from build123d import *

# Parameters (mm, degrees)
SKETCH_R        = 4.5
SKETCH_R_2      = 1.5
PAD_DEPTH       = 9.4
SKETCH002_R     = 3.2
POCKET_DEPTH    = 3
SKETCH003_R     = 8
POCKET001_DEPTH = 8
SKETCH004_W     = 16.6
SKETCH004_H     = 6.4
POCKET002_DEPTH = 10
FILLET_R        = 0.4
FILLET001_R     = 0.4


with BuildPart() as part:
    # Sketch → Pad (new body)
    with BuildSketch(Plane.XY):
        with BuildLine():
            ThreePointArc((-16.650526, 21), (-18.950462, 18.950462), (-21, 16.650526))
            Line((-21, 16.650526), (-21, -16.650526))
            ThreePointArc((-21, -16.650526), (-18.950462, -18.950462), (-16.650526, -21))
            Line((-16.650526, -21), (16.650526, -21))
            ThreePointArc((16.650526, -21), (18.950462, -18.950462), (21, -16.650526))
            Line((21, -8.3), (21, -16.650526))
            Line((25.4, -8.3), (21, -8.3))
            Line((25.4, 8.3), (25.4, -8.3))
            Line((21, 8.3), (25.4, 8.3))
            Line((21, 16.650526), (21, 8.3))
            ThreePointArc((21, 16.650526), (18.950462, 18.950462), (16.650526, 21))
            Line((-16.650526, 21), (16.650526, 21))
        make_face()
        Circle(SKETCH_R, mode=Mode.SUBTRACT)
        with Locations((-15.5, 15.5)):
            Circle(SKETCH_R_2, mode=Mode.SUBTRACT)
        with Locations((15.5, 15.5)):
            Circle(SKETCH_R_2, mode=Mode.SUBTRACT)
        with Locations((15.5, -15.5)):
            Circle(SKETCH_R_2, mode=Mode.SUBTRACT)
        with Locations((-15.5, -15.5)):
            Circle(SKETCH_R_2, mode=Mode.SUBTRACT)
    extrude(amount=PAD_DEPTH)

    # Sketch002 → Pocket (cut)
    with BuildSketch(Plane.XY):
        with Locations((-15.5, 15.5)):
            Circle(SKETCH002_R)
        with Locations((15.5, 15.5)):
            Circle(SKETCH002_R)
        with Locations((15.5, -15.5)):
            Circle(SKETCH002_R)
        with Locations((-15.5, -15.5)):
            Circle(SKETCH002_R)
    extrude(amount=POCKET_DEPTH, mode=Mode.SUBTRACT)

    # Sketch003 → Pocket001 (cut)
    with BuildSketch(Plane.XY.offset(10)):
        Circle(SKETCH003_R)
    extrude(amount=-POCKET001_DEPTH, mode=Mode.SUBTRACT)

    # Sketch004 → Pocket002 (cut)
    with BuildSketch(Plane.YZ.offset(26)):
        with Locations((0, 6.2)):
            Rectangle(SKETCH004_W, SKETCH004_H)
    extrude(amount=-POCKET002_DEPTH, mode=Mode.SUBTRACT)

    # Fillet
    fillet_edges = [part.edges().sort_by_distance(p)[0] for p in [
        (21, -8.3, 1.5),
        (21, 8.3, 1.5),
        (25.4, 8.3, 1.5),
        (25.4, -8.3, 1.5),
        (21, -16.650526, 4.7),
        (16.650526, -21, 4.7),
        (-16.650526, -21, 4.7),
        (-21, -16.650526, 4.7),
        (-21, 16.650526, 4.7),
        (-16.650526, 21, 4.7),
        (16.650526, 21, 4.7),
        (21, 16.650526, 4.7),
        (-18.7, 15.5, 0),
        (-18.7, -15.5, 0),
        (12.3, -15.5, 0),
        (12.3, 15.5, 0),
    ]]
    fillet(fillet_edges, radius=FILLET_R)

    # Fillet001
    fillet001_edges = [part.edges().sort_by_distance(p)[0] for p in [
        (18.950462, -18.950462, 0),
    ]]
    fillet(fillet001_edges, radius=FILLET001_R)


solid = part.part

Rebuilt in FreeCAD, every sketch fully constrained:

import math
import FreeCAD as App
import Part
import Sketcher

V = App.Vector


def edges_at(feature, points):
    """Names of the edges that pass closest to the given points."""
    edges = feature.Shape.Edges
    near = lambda p: min(range(len(edges)), key=lambda i: edges[i].distToShape(Part.Vertex(*p))[0])
    return sorted({f"Edge{near(p) + 1}" for p in points})

doc = App.newDocument("Part")
params = doc.addObject("Spreadsheet::Sheet", "Params")
for row, (alias, value) in enumerate([
    ("sketch1_diameter", "3 mm"),
    ("sketch1_diameter2", "9 mm"),
    ("sketch1_width", "4.4 mm"),
    ("sketch1_height", "16.6 mm"),
    ("pad1_length", "9.4 mm"),
    ("sketch2_diameter", "6.4 mm"),
    ("pocket1_length", "3 mm"),
    ("sketch3_diameter", "16 mm"),
    ("pocket2_length", "8 mm"),
    ("sketch4_width", "16.6 mm"),
    ("sketch4_height", "6.4 mm"),
    ("pocket3_length", "10 mm"),
    ("fillet_radius", "0.4 mm"),
    ("fillet2_radius", "0.4 mm"),
], start=1):
    params.set(f"A{row}", alias)
    params.set(f"B{row}", "=" + value)
    params.setAlias(f"B{row}", alias)

body = doc.addObject("PartDesign::Body", "Body")

# Sketch on XY plane
sketch1 = doc.addObject("Sketcher::SketchObject", "Sketch")
body.addObject(sketch1)
sketch1.AttachmentSupport = (doc.XY_Plane, [""])
sketch1.MapMode = "FlatFace"
sketch1.addGeometry(Part.ArcOfCircle(Part.Circle(V(-0.000008, 0.000008, 0), V(0, 0, 1), 26.799989), math.radians(128.41027), math.radians(141.58973)), False)
sketch1.addGeometry(Part.LineSegment(V(-21, 16.650526, 0), V(-21, -16.650526, 0)), False)
sketch1.addGeometry(Part.ArcOfCircle(Part.Circle(V(-0.000008, -0.000008, 0), V(0, 0, 1), 26.799989), math.radians(-141.58973), math.radians(-128.41027)), False)
sketch1.addGeometry(Part.LineSegment(V(-16.650526, -21, 0), V(16.650526, -21, 0)), False)
sketch1.addGeometry(Part.ArcOfCircle(Part.Circle(V(0.000008, -0.000008, 0), V(0, 0, 1), 26.799989), math.radians(-51.58973), math.radians(-38.41027)), False)
sketch1.addGeometry(Part.LineSegment(V(21, -16.650526, 0), V(21, -8.3, 0)), False)
sketch1.addGeometry(Part.LineSegment(V(21, -8.3, 0), V(25.4, -8.3, 0)), False)
sketch1.addGeometry(Part.LineSegment(V(25.4, -8.3, 0), V(25.4, 8.3, 0)), False)
sketch1.addGeometry(Part.LineSegment(V(25.4, 8.3, 0), V(21, 8.3, 0)), False)
sketch1.addGeometry(Part.LineSegment(V(21, 8.3, 0), V(21, 16.650526, 0)), False)
sketch1.addGeometry(Part.ArcOfCircle(Part.Circle(V(0.000008, 0.000008, 0), V(0, 0, 1), 26.799989), math.radians(38.41027), math.radians(51.58973)), False)
sketch1.addGeometry(Part.LineSegment(V(16.650526, 21, 0), V(-16.650526, 21, 0)), False)
sketch1.addGeometry(Part.Circle(V(-15.5, -15.5, 0), V(0, 0, 1), 1.5), False)
sketch1.addGeometry(Part.Circle(V(15.5, -15.5, 0), V(0, 0, 1), 1.5), False)
sketch1.addGeometry(Part.Circle(V(-15.5, 15.5, 0), V(0, 0, 1), 1.5), False)
sketch1.addGeometry(Part.Circle(V(0, 0, 0), V(0, 0, 1), 4.5), False)
sketch1.addGeometry(Part.Circle(V(15.5, 15.5, 0), V(0, 0, 1), 1.5), False)
sketch1.addConstraint(Sketcher.Constraint("Coincident", 0, 2, 1, 1))
sketch1.addConstraint(Sketcher.Constraint("Coincident", 1, 2, 2, 1))
sketch1.addConstraint(Sketcher.Constraint("Coincident", 2, 2, 3, 1))
sketch1.addConstraint(Sketcher.Constraint("Coincident", 3, 2, 4, 1))
sketch1.addConstraint(Sketcher.Constraint("Coincident", 4, 2, 5, 1))
sketch1.addConstraint(Sketcher.Constraint("Coincident", 5, 2, 6, 1))
sketch1.addConstraint(Sketcher.Constraint("Coincident", 6, 2, 7, 1))
sketch1.addConstraint(Sketcher.Constraint("Coincident", 7, 2, 8, 1))
sketch1.addConstraint(Sketcher.Constraint("Coincident", 8, 2, 9, 1))
sketch1.addConstraint(Sketcher.Constraint("Coincident", 9, 2, 10, 1))
sketch1.addConstraint(Sketcher.Constraint("Coincident", 10, 2, 11, 1))
sketch1.addConstraint(Sketcher.Constraint("Coincident", 11, 2, 0, 1))
sketch1.addConstraint(Sketcher.Constraint("Vertical", 1))
sketch1.addConstraint(Sketcher.Constraint("Horizontal", 3))
sketch1.addConstraint(Sketcher.Constraint("Vertical", 5))
sketch1.addConstraint(Sketcher.Constraint("Horizontal", 6))
sketch1.addConstraint(Sketcher.Constraint("Vertical", 7))
sketch1.addConstraint(Sketcher.Constraint("Horizontal", 8))
sketch1.addConstraint(Sketcher.Constraint("Vertical", 9))
sketch1.addConstraint(Sketcher.Constraint("Horizontal", 11))
sketch1.addConstraint(Sketcher.Constraint("Coincident", 15, 3, -1, 1))
sketch1.addConstraint(Sketcher.Constraint("Equal", 0, 2))
sketch1.addConstraint(Sketcher.Constraint("Equal", 2, 4))
sketch1.addConstraint(Sketcher.Constraint("Equal", 4, 10))
sketch1.addConstraint(Sketcher.Constraint("Equal", 12, 13))
sketch1.addConstraint(Sketcher.Constraint("Equal", 13, 14))
sketch1.addConstraint(Sketcher.Constraint("Equal", 14, 16))
sketch1.addConstraint(Sketcher.Constraint("Symmetric", 0, 3, 4, 3, -1, 1))
sketch1.addConstraint(Sketcher.Constraint("Symmetric", 2, 3, 10, 3, -1, 1))
sketch1.addConstraint(Sketcher.Constraint("Symmetric", 13, 3, 14, 3, -1, 1))
sketch1.addConstraint(Sketcher.Constraint("Symmetric", 12, 3, 16, 3, -1, 1))
sketch1.addConstraint(Sketcher.Constraint("Symmetric", 2, 3, 4, 3, -2))
sketch1.addConstraint(Sketcher.Constraint("Symmetric", 12, 3, 13, 3, -2))
sketch1.addConstraint(Sketcher.Constraint("Symmetric", 5, 2, 8, 2, -1))
sketch1.addConstraint(Sketcher.Constraint("Horizontal", 1, 2, 4, 2))
sketch1.addConstraint(Sketcher.Constraint("Vertical", 3, 2, 10, 2))
sketch1.addConstraint(Sketcher.Constraint("Equal", 11, 1))
sketch1.addConstraint(Sketcher.Constraint("Diameter", 12, 3.0))
sketch1.addConstraint(Sketcher.Constraint("Diameter", 15, 9.0))
sketch1.addConstraint(Sketcher.Constraint("DistanceX", 6, 1, 6, 2, 4.4))
sketch1.addConstraint(Sketcher.Constraint("DistanceY", 7, 1, 7, 2, 16.6))
sketch1.addConstraint(Sketcher.Constraint("DistanceX", 0, 2, -1, 1, 21.0))
sketch1.addConstraint(Sketcher.Constraint("DistanceY", 2, 2, -1, 1, 21.0))
sketch1.addConstraint(Sketcher.Constraint("DistanceX", 12, 3, 13, 3, 31.0))
sketch1.addConstraint(Sketcher.Constraint("DistanceY", 12, 3, 14, 3, 31.0))
sketch1.addConstraint(Sketcher.Constraint("Radius", 0, 26.799989))
sketch1.addConstraint(Sketcher.Constraint("DistanceX", 3, 1, 3, 2, 33.301052))
sketch1.setExpression("Constraints[37]", "Params.sketch1_diameter")
sketch1.setExpression("Constraints[38]", "Params.sketch1_diameter2")
sketch1.setExpression("Constraints[39]", "Params.sketch1_width")
sketch1.setExpression("Constraints[40]", "Params.sketch1_height")
pad1 = doc.addObject("PartDesign::Pad", "Pad")
body.addObject(pad1)
pad1.Profile = sketch1
pad1.setExpression("Length", "Params.pad1_length")

# Sketch on XY plane
sketch2 = doc.addObject("Sketcher::SketchObject", "Sketch001")
body.addObject(sketch2)
sketch2.AttachmentSupport = (doc.XY_Plane, [""])
sketch2.MapMode = "FlatFace"
sketch2.addGeometry(Part.Circle(V(-15.5, 15.5, 0), V(0, 0, 1), 3.2), False)
sketch2.addGeometry(Part.Circle(V(15.5, 15.5, 0), V(0, 0, 1), 3.2), False)
sketch2.addGeometry(Part.Circle(V(15.5, -15.5, 0), V(0, 0, 1), 3.2), False)
sketch2.addGeometry(Part.Circle(V(-15.5, -15.5, 0), V(0, 0, 1), 3.2), False)
sketch2.addConstraint(Sketcher.Constraint("Equal", 0, 1))
sketch2.addConstraint(Sketcher.Constraint("Equal", 1, 2))
sketch2.addConstraint(Sketcher.Constraint("Equal", 2, 3))
sketch2.addConstraint(Sketcher.Constraint("Symmetric", 0, 3, 2, 3, -1, 1))
sketch2.addConstraint(Sketcher.Constraint("Symmetric", 1, 3, 3, 3, -1, 1))
sketch2.addConstraint(Sketcher.Constraint("Symmetric", 0, 3, 1, 3, -2))
sketch2.addConstraint(Sketcher.Constraint("Diameter", 0, 6.4))
sketch2.addConstraint(Sketcher.Constraint("DistanceX", 0, 3, 1, 3, 31.0))
sketch2.addConstraint(Sketcher.Constraint("DistanceY", 2, 3, 1, 3, 31.0))
sketch2.setExpression("Constraints[6]", "Params.sketch2_diameter")
pocket1 = doc.addObject("PartDesign::Pocket", "Pocket")
body.addObject(pocket1)
pocket1.Profile = sketch2
pocket1.setExpression("Length", "Params.pocket1_length")
pocket1.Reversed = True

# Sketch on XY plane
sketch3 = doc.addObject("Sketcher::SketchObject", "Sketch002")
body.addObject(sketch3)
sketch3.AttachmentSupport = (doc.XY_Plane, [""])
sketch3.MapMode = "FlatFace"
sketch3.AttachmentOffset = App.Placement(V(0, 0, 10), App.Rotation())
sketch3.addGeometry(Part.Circle(V(0, 0, 0), V(0, 0, 1), 8), False)
sketch3.addConstraint(Sketcher.Constraint("Coincident", 0, 3, -1, 1))
sketch3.addConstraint(Sketcher.Constraint("Diameter", 0, 16.0))
sketch3.setExpression("Constraints[1]", "Params.sketch3_diameter")
pocket2 = doc.addObject("PartDesign::Pocket", "Pocket001")
body.addObject(pocket2)
pocket2.Profile = sketch3
pocket2.setExpression("Length", "Params.pocket2_length")

# Sketch on YZ plane
sketch4 = doc.addObject("Sketcher::SketchObject", "Sketch003")
body.addObject(sketch4)
sketch4.AttachmentSupport = (doc.YZ_Plane, [""])
sketch4.MapMode = "FlatFace"
sketch4.AttachmentOffset = App.Placement(V(0, 0, 26), App.Rotation())
sketch4.addGeometry(Part.LineSegment(V(-8, 9, 0), V(-8, 3, 0)), False)
sketch4.addGeometry(Part.LineSegment(V(-8, 3, 0), V(8, 3, 0)), False)
sketch4.addGeometry(Part.LineSegment(V(8, 3, 0), V(8, 9, 0)), False)
sketch4.addGeometry(Part.LineSegment(V(8, 9, 0), V(-8, 9, 0)), False)
sketch4.addConstraint(Sketcher.Constraint("Coincident", 0, 2, 1, 1))
sketch4.addConstraint(Sketcher.Constraint("Coincident", 1, 2, 2, 1))
sketch4.addConstraint(Sketcher.Constraint("Coincident", 2, 2, 3, 1))
sketch4.addConstraint(Sketcher.Constraint("Coincident", 3, 2, 0, 1))
sketch4.addConstraint(Sketcher.Constraint("Vertical", 0))
sketch4.addConstraint(Sketcher.Constraint("Horizontal", 1))
sketch4.addConstraint(Sketcher.Constraint("Vertical", 2))
sketch4.addConstraint(Sketcher.Constraint("Horizontal", 3))
sketch4.addConstraint(Sketcher.Constraint("DistanceX", 1, 1, 1, 2, 16.6))
sketch4.addConstraint(Sketcher.Constraint("DistanceY", 0, 2, 0, 1, 6.4))
sketch4.addConstraint(Sketcher.Constraint("DistanceY", -1, 1, 0, 2, 3.0))
sketch4.addConstraint(Sketcher.Constraint("DistanceX", 0, 2, -1, 1, 8.3))
sketch4.setExpression("Constraints[8]", "Params.sketch4_width")
sketch4.setExpression("Constraints[9]", "Params.sketch4_height")
pocket3 = doc.addObject("PartDesign::Pocket", "Pocket002")
body.addObject(pocket3)
pocket3.Profile = sketch4
pocket3.setExpression("Length", "Params.pocket3_length")
doc.recompute()

fillet = doc.addObject("PartDesign::Fillet", "Fillet")
body.addObject(fillet)
fillet.Base = (pocket3, edges_at(pocket3, [
    (21, -8.3, 1.5),
    (21, 8.3, 1.5),
    (25.4, 8.3, 1.5),
    (25.4, -8.3, 1.5),
    (21, -16.651, 4.7),
    (16.651, -21, 4.7),
    (-16.651, -21, 4.7),
    (-21, -16.651, 4.7),
    (-21, 16.651, 4.7),
    (-16.651, 21, 4.7),
    (16.651, 21, 4.7),
    (21, 16.651, 4.7),
    (-18.7, 15.5, 0),
    (-18.7, -15.5, 0),
    (12.3, -15.5, 0),
    (12.3, 15.5, 0),
]))
fillet.setExpression("Radius", "Params.fillet_radius")
doc.recompute()

fillet2 = doc.addObject("PartDesign::Fillet", "Fillet001")
body.addObject(fillet2)
fillet2.Base = (fillet, edges_at(fillet, [(18.95, -18.95, 0)]))
fillet2.setExpression("Radius", "Params.fillet2_radius")

doc.recompute()
